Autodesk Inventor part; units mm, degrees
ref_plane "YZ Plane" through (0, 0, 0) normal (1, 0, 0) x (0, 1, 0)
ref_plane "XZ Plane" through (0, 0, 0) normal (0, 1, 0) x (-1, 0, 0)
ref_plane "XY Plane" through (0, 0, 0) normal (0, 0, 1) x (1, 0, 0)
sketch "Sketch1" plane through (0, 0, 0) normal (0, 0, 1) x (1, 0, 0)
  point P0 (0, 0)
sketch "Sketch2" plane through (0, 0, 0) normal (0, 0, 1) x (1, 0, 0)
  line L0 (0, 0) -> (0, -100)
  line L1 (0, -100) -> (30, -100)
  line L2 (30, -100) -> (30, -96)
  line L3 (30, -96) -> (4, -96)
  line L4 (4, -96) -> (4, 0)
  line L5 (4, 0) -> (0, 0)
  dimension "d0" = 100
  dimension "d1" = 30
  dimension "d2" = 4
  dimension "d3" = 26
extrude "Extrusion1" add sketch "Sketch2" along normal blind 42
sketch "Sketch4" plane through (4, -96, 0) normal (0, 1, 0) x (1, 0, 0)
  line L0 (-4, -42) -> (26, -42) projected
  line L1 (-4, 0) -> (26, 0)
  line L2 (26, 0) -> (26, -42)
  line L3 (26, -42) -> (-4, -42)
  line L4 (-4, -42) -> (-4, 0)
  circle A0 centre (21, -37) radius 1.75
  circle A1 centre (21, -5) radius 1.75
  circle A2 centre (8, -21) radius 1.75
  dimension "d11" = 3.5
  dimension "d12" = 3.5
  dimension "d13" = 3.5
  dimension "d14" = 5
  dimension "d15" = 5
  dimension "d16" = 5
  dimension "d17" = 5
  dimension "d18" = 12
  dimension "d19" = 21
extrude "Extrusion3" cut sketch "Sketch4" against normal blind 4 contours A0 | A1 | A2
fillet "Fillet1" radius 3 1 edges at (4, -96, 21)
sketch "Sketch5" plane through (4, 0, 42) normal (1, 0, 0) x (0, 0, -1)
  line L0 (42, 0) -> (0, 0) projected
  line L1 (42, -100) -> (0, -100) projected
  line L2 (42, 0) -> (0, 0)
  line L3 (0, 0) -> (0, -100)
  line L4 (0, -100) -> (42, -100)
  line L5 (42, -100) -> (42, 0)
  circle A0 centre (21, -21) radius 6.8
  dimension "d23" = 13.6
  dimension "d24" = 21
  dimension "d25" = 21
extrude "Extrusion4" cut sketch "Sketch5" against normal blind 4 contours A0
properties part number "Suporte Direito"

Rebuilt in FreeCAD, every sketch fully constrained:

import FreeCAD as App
import Part
import Sketcher
from FreeCAD import Vector
Q = App.Units.Quantity


def edges_at(feature, points):
    """Names of the edges that pass closest to the given points."""
    edges = feature.Shape.Edges
    near = lambda p: min(range(len(edges)), key=lambda i: edges[i].distToShape(Part.Vertex(*p))[0])
    return sorted({f"Edge{near(p) + 1}" for p in points})

doc = App.newDocument("Part")
params = doc.addObject("Spreadsheet::Sheet", "Params")
for row, (alias, value) in enumerate([
    ("sketch1_width", "4 mm"),
    ("sketch1_width2", "30 mm"),
    ("sketch1_height", "100 mm"),
    ("pad1_length", "42 mm"),
    ("sketch2_diameter", "3.5 mm"),
    ("pocket1_length", "4 mm"),
    ("fillet_radius", "3 mm"),
    ("sketch3_diameter", "13.6 mm"),
    ("pocket2_length", "4 mm"),
], start=1):
    params.set(f"A{row}", alias)
    params.set(f"B{row}", "=" + value)
    params.setAlias(f"B{row}", alias)

body = doc.addObject("PartDesign::Body", "Body")

# Sketch on XY plane
sketch1 = doc.addObject("Sketcher::SketchObject", "Sketch")
body.addObject(sketch1)
sketch1.AttachmentSupport = (doc.XY_Plane, [""])
sketch1.MapMode = "FlatFace"
sketch1.addGeometry(Part.LineSegment(Vector(4, 0, 0), Vector(0, 0, 0)), False)
sketch1.addGeometry(Part.LineSegment(Vector(0, 0, 0), Vector(0, -100, 0)), False)
sketch1.addGeometry(Part.LineSegment(Vector(0, -100, 0), Vector(30, -100, 0)), False)
sketch1.addGeometry(Part.LineSegment(Vector(30, -100, 0), Vector(30, -96, 0)), False)
sketch1.addGeometry(Part.LineSegment(Vector(30, -96, 0), Vector(4, -96, 0)), False)
sketch1.addGeometry(Part.LineSegment(Vector(4, -96, 0), Vector(4, 0, 0)), False)
sketch1.addConstraint(Sketcher.Constraint("Coincident", 0, 2, 1, 1))
sketch1.addConstraint(Sketcher.Constraint("Coincident", 1, 2, 2, 1))
sketch1.addConstraint(Sketcher.Constraint("Coincident", 2, 2, 3, 1))
sketch1.addConstraint(Sketcher.Constraint("Coincident", 3, 2, 4, 1))
sketch1.addConstraint(Sketcher.Constraint("Coincident", 4, 2, 5, 1))
sketch1.addConstraint(Sketcher.Constraint("Coincident", 5, 2, 0, 1))
sketch1.addConstraint(Sketcher.Constraint("Horizontal", 0))
sketch1.addConstraint(Sketcher.Constraint("Vertical", 1))
sketch1.addConstraint(Sketcher.Constraint("Horizontal", 2))
sketch1.addConstraint(Sketcher.Constraint("Vertical", 3))
sketch1.addConstraint(Sketcher.Constraint("Horizontal", 4))
sketch1.addConstraint(Sketcher.Constraint("Vertical", 5))
sketch1.addConstraint(Sketcher.Constraint("Coincident", 0, 2, -1, 1))
sketch1.addConstraint(Sketcher.Constraint("Equal", 0, 3))
sketch1.addConstraint(Sketcher.Constraint("DistanceX", 0, 2, 0, 1, Q("4 mm")))
sketch1.addConstraint(Sketcher.Constraint("DistanceX", 2, 1, 2, 2, Q("30 mm")))
sketch1.addConstraint(Sketcher.Constraint("DistanceY", 1, 2, 1, 1, Q("100 mm")))
sketch1.setExpression("Constraints[14]", "Params.sketch1_width")
sketch1.setExpression("Constraints[15]", "Params.sketch1_width2")
sketch1.setExpression("Constraints[16]", "Params.sketch1_height")
pad1 = doc.addObject("PartDesign::Pad", "Pad")
body.addObject(pad1)
pad1.Profile = sketch1
pad1.setExpression("Length", "Params.pad1_length")

# Sketch on XZ plane
sketch2 = doc.addObject("Sketcher::SketchObject", "Sketch001")
body.addObject(sketch2)
sketch2.AttachmentSupport = (doc.XZ_Plane, [""])
sketch2.MapMode = "FlatFace"
sketch2.AttachmentOffset = App.Placement(Vector(0, 0, 96), App.Rotation())
sketch2.addGeometry(Part.Circle(Vector(25, 37, 0), Vector(0, 0, 1), 1.8), False)
sketch2.addGeometry(Part.Circle(Vector(25, 5, 0), Vector(0, 0, 1), 1.8), False)
sketch2.addGeometry(Part.Circle(Vector(12, 21, 0), Vector(0, 0, 1), 1.8), False)
sketch2.addConstraint(Sketcher.Constraint("Equal", 0, 1))
sketch2.addConstraint(Sketcher.Constraint("Equal", 1, 2))
sketch2.addConstraint(Sketcher.Constraint("Vertical", 0, 3, 1, 3))
sketch2.addConstraint(Sketcher.Constraint("Diameter", 0, Q("3.5 mm")))
sketch2.addConstraint(Sketcher.Constraint("DistanceY", -1, 1, 1, 3, Q("5 mm")))
sketch2.addConstraint(Sketcher.Constraint("DistanceX", -1, 1, 2, 3, Q("12 mm")))
sketch2.addConstraint(Sketcher.Constraint("DistanceY", -1, 1, 2, 3, Q("21 mm")))
sketch2.addConstraint(Sketcher.Constraint("DistanceX", -1, 1, 0, 3, Q("25 mm")))
sketch2.addConstraint(Sketcher.Constraint("DistanceY", -1, 1, 0, 3, Q("37 mm")))
sketch2.setExpression("Constraints[3]", "Params.sketch2_diameter")
pocket1 = doc.addObject("PartDesign::Pocket", "Pocket")
body.addObject(pocket1)
pocket1.Profile = sketch2
pocket1.setExpression("Length", "Params.pocket1_length")
pocket1.Reversed = True
doc.recompute()

fillet = doc.addObject("PartDesign::Fillet", "Fillet")
body.addObject(fillet)
fillet.Base = (pocket1, edges_at(pocket1, [(4, -96, 21)]))
fillet.setExpression("Radius", "Params.fillet_radius")

# Sketch on YZ plane
sketch3 = doc.addObject("Sketcher::SketchObject", "Sketch002")
body.addObject(sketch3)
sketch3.AttachmentSupport = (doc.YZ_Plane, [""])
sketch3.MapMode = "FlatFace"
sketch3.AttachmentOffset = App.Placement(Vector(0, 0, 4), App.Rotation())
sketch3.addGeometry(Part.Circle(Vector(-21, 21, 0), Vector(0, 0, 1), 7), False)
sketch3.addConstraint(Sketcher.Constraint("Diameter", 0, Q("13.6 mm")))
sketch3.addConstraint(Sketcher.Constraint("DistanceX", 0, 3, -1, 1, Q("21 mm")))
sketch3.addConstraint(Sketcher.Constraint("DistanceY", -1, 1, 0, 3, Q("21 mm")))
sketch3.setExpression("Constraints[0]", "Params.sketch3_diameter")
pocket2 = doc.addObject("PartDesign::Pocket", "Pocket001")
body.addObject(pocket2)
pocket2.Profile = sketch3
pocket2.setExpression("Length", "Params.pocket2_length")

doc.recompute()
